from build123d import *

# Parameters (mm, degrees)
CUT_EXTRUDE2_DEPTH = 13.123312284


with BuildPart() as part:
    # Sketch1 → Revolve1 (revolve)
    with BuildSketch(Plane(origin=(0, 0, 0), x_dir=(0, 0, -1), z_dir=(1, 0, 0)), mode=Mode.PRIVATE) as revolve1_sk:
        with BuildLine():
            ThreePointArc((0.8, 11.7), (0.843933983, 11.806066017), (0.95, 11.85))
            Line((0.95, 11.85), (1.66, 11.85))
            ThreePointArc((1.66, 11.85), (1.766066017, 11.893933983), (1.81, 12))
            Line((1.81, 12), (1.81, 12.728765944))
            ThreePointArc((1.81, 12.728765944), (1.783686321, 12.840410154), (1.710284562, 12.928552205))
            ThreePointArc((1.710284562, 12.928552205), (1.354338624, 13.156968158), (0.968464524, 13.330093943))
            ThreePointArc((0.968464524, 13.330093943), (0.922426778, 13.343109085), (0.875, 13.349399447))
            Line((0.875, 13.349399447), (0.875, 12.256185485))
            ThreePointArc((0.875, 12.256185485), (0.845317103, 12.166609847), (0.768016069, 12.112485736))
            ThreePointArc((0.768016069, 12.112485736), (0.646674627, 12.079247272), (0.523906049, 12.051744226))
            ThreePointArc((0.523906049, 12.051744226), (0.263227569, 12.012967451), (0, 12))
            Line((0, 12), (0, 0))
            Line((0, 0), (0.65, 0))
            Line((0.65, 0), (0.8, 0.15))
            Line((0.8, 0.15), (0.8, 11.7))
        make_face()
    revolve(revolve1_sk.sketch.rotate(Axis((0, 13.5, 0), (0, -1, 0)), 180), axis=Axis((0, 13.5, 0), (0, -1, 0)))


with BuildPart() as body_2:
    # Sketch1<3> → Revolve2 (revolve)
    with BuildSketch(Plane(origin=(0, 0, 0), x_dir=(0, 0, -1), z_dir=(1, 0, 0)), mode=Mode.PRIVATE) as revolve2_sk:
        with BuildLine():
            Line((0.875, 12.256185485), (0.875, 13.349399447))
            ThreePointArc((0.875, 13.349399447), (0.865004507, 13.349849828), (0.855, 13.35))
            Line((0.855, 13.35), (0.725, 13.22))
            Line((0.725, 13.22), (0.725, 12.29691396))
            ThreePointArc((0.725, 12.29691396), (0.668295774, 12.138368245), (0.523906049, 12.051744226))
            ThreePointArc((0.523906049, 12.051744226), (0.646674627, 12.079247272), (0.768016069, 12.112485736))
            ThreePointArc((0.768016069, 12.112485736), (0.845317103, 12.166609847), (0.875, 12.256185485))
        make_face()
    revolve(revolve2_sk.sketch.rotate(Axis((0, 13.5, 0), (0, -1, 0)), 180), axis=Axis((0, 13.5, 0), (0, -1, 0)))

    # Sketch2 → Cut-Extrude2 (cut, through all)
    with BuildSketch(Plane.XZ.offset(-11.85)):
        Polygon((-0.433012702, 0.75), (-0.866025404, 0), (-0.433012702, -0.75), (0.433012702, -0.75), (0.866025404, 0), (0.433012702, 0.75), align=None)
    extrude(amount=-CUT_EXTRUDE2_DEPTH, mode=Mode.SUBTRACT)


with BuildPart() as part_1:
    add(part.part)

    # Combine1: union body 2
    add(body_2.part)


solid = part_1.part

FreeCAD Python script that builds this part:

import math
import FreeCAD as App
import Part
import Sketcher
Q = App.Units.Quantity

doc = App.newDocument("Part")
params = doc.addObject("Spreadsheet::Sheet", "Params")
for row, (alias, value) in enumerate([
    ("sketch1_width", "12 mm"),
    ("sketch1_radius", "0.15 mm"),
    ("sketch1_radius2", "0.25 mm"),
    ("sketch1_width2", "11.55 mm"),
    ("sketch1_height", "0.71 mm"),
    ("revolution_angle", "360 deg"),
    ("sketch2_radius", "0.25 mm"),
    ("sketch2_radius2", "0.15 mm"),
    ("revolution2_angle", "360 deg"),
], start=1):
    params.set(f"A{row}", alias)
    params.set(f"B{row}", "=" + value)
    params.setAlias(f"B{row}", alias)

body = doc.addObject("PartDesign::Body", "Body")

# Sketch on YZ plane
sketch1 = doc.addObject("Sketcher::SketchObject", "Sketch")
body.addObject(sketch1)
sketch1.AttachmentSupport = (doc.YZ_Plane, [""])
sketch1.MapMode = "FlatFace"
sketch1.addGeometry([
    Part.ArcOfCircle(Part.Circle(App.Vector(11.7, -0.95, 0), App.Vector(0, 0, 1), 0.15), math.radians(0), math.radians(90)),  # 0
    Part.LineSegment(App.Vector(11.85, -0.95, 0), App.Vector(11.85, -1.66, 0)),  # 1
    Part.ArcOfCircle(Part.Circle(App.Vector(12, -1.66, 0), App.Vector(0, 0, 1), 0.15), math.radians(-180), math.radians(-90)),  # 2
    Part.LineSegment(App.Vector(12, -1.81, 0), App.Vector(12.73, -1.81, 0)),  # 3
    Part.ArcOfCircle(Part.Circle(App.Vector(12.73, -1.56, 0), App.Vector(0, 0, 1), 0.25), math.radians(-90), math.radians(-37)),  # 4
    Part.ArcOfCircle(Part.Circle(App.Vector(10.65, 0, 0), App.Vector(0, 0, 1), 2.85), math.radians(-36.95), math.radians(-19.9)),  # 5
    Part.ArcOfCircle(Part.Circle(App.Vector(13.02, -0.86, 0), App.Vector(0, 0, 1), 0.33), math.radians(-19.9), math.radians(-3.44)),  # 6
    Part.LineSegment(App.Vector(13.35, -0.88, 0), App.Vector(12.26, -0.88, 0)),  # 7
    Part.ArcOfCircle(Part.Circle(App.Vector(12.26, -0.73, 0), App.Vector(0, 0, 1), 0.15), math.radians(-163), math.radians(-90)),  # 8
    Part.ArcOfCircle(Part.Circle(App.Vector(14.68, 0, 0), App.Vector(0, 0, 1), 2.68), math.radians(-168.72), math.radians(-163.34)),  # 9
    Part.ArcOfCircle(Part.Circle(App.Vector(14.68, 0, 0), App.Vector(0, 0, 1), 2.68), math.radians(-180), math.radians(-168.72)),  # 10
    Part.LineSegment(App.Vector(12, 0, 0), App.Vector(0, 0, 0)),  # 11
    Part.LineSegment(App.Vector(0, 0, 0), App.Vector(0, -0.65, 0)),  # 12
    Part.LineSegment(App.Vector(0, -0.65, 0), App.Vector(0.15, -0.8, 0)),  # 13
    Part.LineSegment(App.Vector(0.15, -0.8, 0), App.Vector(11.7, -0.8, 0)),  # 14
], False)
sketch1.addConstraint([
    Sketcher.Constraint("Tangent", 0, 1, 1, 1),
    Sketcher.Constraint("Tangent", 1, 2, 2, 1),
    Sketcher.Constraint("Tangent", 2, 2, 3, 1),
    Sketcher.Constraint("Tangent", 3, 2, 4, 1),
    Sketcher.Constraint("Tangent", 4, 2, 5, 1),
    Sketcher.Constraint("Tangent", 5, 2, 6, 1),
    Sketcher.Constraint("Coincident", 6, 2, 7, 1),
    Sketcher.Constraint("Tangent", 7, 2, 8, 2),
    Sketcher.Constraint("Tangent", 8, 1, 9, 2),
    Sketcher.Constraint("Tangent", 9, 1, 10, 2),
    Sketcher.Constraint("Coincident", 10, 1, 11, 1),
    Sketcher.Constraint("Coincident", 11, 2, 12, 1),
    Sketcher.Constraint("Coincident", 12, 2, 13, 1),
    Sketcher.Constraint("Coincident", 13, 2, 14, 1),
    Sketcher.Constraint("Tangent", 14, 2, 0, 2),
    Sketcher.Constraint("Vertical", 1),
    Sketcher.Constraint("Horizontal", 3),
    Sketcher.Constraint("Horizontal", 7),
    Sketcher.Constraint("Horizontal", 11),
    Sketcher.Constraint("Vertical", 12),
    Sketcher.Constraint("Horizontal", 14),
    Sketcher.Constraint("Coincident", 11, 2, -1, 1),
    Sketcher.Constraint("Equal", 0, 2),
    Sketcher.Constraint("Equal", 2, 8),
    Sketcher.Constraint("Equal", 9, 10),
    Sketcher.Constraint("PointOnObject", 5, 3, -1),
    Sketcher.Constraint("PointOnObject", 9, 3, -1),
    Sketcher.Constraint("Vertical", 2, 2, 10, 1),
    Sketcher.Constraint("DistanceX", 11, 2, 11, 1, Q("12 mm")),
    Sketcher.Constraint("Angle", 13, Q("-45 deg")),
    Sketcher.Constraint("Radius", 0, Q("0.15 mm")),
    Sketcher.Constraint("Radius", 4, Q("0.25 mm")),
    Sketcher.Constraint("DistanceX", 14, 1, 14, 2, Q("11.55 mm")),
    Sketcher.Constraint("DistanceY", 1, 2, 1, 1, Q("0.71 mm")),
    Sketcher.Constraint("DistanceY", 12, 2, 12, 1, Q("0.65 mm")),
    Sketcher.Constraint("DistanceY", 6, 3, 8, 3, Q("0.13 mm")),
    Sketcher.Constraint("DistanceY", 6, 3, -1, 1, Q("0.855 mm")),
    Sketcher.Constraint("Radius", 5, Q("2.845077 mm")),
    Sketcher.Constraint("Radius", 6, Q("0.333327 mm")),
    Sketcher.Constraint("Radius", 9, Q("2.678125 mm")),
    Sketcher.Constraint("DistanceX", -1, 1, 6, 2, Q("13.349399 mm")),
    Sketcher.Constraint("DistanceX", 9, 1, 8, 1, Q("0.060742 mm")),
])
sketch1.setExpression("Constraints[28]", "Params.sketch1_width")
sketch1.setExpression("Constraints[30]", "Params.sketch1_radius")
sketch1.setExpression("Constraints[31]", "Params.sketch1_radius2")
sketch1.setExpression("Constraints[32]", "Params.sketch1_width2")
sketch1.setExpression("Constraints[33]", "Params.sketch1_height")
revolution = doc.addObject("PartDesign::Revolution", "Revolution")
body.addObject(revolution)
revolution.Profile = sketch1
revolution.ReferenceAxis = (sketch1, ["H_Axis"])
revolution.setExpression("Angle", "Params.revolution_angle")
body2 = doc.addObject("PartDesign::Body", "Body001")

# Sketch on YZ plane
sketch2 = doc.addObject("Sketcher::SketchObject", "Sketch001")
body2.addObject(sketch2)
sketch2.AttachmentSupport = (doc.getObject("YZ_Plane001"), [""])
sketch2.MapMode = "FlatFace"
sketch2.addGeometry([
    Part.LineSegment(App.Vector(12.256, -0.875, 0), App.Vector(13.349, -0.875, 0)),  # 0
    Part.ArcOfCircle(Part.Circle(App.Vector(13.017, -0.855, 0), App.Vector(0, 0, 1), 0.333), math.radians(-3.44), math.radians(0)),  # 1
    Part.LineSegment(App.Vector(13.35, -0.855, 0), App.Vector(13.22, -0.725, 0)),  # 2
    Part.LineSegment(App.Vector(13.22, -0.725, 0), App.Vector(12.297, -0.725, 0)),  # 3
    Part.ArcOfCircle(Part.Circle(App.Vector(12.297, -0.475, 0), App.Vector(0, 0, 1), 0.25), math.radians(-169), math.radians(-90)),  # 4
    Part.ArcOfCircle(Part.Circle(App.Vector(14.678, 0, 0), App.Vector(0, 0, 1), 2.678), math.radians(-168.72), math.radians(-163.34)),  # 5
    Part.ArcOfCircle(Part.Circle(App.Vector(12.256, -0.725, 0), App.Vector(0, 0, 1), 0.15), math.radians(-163), math.radians(-90)),  # 6
], False)
sketch2.addConstraint([
    Sketcher.Constraint("Coincident", 0, 2, 1, 1),
    Sketcher.Constraint("Coincident", 1, 2, 2, 1),
    Sketcher.Constraint("Coincident", 2, 2, 3, 1),
    Sketcher.Constraint("Tangent", 3, 2, 4, 2),
    Sketcher.Constraint("Tangent", 4, 1, 5, 1),
    Sketcher.Constraint("Tangent", 5, 2, 6, 1),
    Sketcher.Constraint("Tangent", 6, 2, 0, 1),
    Sketcher.Constraint("Horizontal", 0),
    Sketcher.Constraint("Horizontal", 3),
    Sketcher.Constraint("PointOnObject", 5, 3, -1),
    Sketcher.Constraint("Horizontal", 6, 3, 2, 2),
    Sketcher.Constraint("Angle", 2, Q("135 deg")),
    Sketcher.Constraint("Radius", 4, Q("0.25 mm")),
    Sketcher.Constraint("Radius", 6, Q("0.15 mm")),
    Sketcher.Constraint("DistanceX", -1, 1, 1, 2, Q("13.35 mm")),
    Sketcher.Constraint("DistanceX", -1, 1, 2, 2, Q("13.22 mm")),
    Sketcher.Constraint("DistanceY", 1, 3, 4, 3, Q("0.38 mm")),
    Sketcher.Constraint("DistanceY", 1, 3, -1, 1, Q("0.855 mm")),
    Sketcher.Constraint("Radius", 1, Q("0.333327 mm")),
    Sketcher.Constraint("Radius", 5, Q("2.678125 mm")),
    Sketcher.Constraint("DistanceX", 0, 1, 0, 2, Q("1.093214 mm")),
])
sketch2.setExpression("Constraints[12]", "Params.sketch2_radius")
sketch2.setExpression("Constraints[13]", "Params.sketch2_radius2")
revolution2 = doc.addObject("PartDesign::Revolution", "Revolution001")
body2.addObject(revolution2)
revolution2.Profile = sketch2
revolution2.ReferenceAxis = (sketch2, ["H_Axis"])
revolution2.setExpression("Angle", "Params.revolution2_angle")

# Sketch on XZ plane
sketch3 = doc.addObject("Sketcher::SketchObject", "Sketch002")
body2.addObject(sketch3)
sketch3.AttachmentSupport = (doc.getObject("XZ_Plane001"), [""])
sketch3.MapMode = "FlatFace"
sketch3.AttachmentOffset = App.Placement(App.Vector(0, 0, -11.85), App.Rotation())
sketch3.addGeometry([
    Part.LineSegment(App.Vector(-0.4, 0.8, 0), App.Vector(-0.9, 0, 0)),  # 0
    Part.LineSegment(App.Vector(-0.9, 0, 0), App.Vector(-0.4, -0.8, 0)),  # 1
    Part.LineSegment(App.Vector(-0.4, -0.8, 0), App.Vector(0.4, -0.8, 0)),  # 2
    Part.LineSegment(App.Vector(0.4, -0.8, 0), App.Vector(0.9, 0, 0)),  # 3
    Part.LineSegment(App.Vector(0.9, 0, 0), App.Vector(0.4, 0.8, 0)),  # 4
    Part.LineSegment(App.Vector(0.4, 0.8, 0), App.Vector(-0.4, 0.8, 0)),  # 5
], False)
sketch3.addConstraint([
    Sketcher.Constraint("Coincident", 0, 2, 1, 1),
    Sketcher.Constraint("Coincident", 1, 2, 2, 1),
    Sketcher.Constraint("Coincident", 2, 2, 3, 1),
    Sketcher.Constraint("Coincident", 3, 2, 4, 1),
    Sketcher.Constraint("Coincident", 4, 2, 5, 1),
    Sketcher.Constraint("Coincident", 5, 2, 0, 1),
    Sketcher.Constraint("Horizontal", 2),
    Sketcher.Constraint("Horizontal", 5),
    Sketcher.Constraint("Symmetric", 0, 2, 3, 2, -1, 1),
    Sketcher.Constraint("Symmetric", 1, 2, 4, 2, -1, 1),
    Sketcher.Constraint("PointOnObject", 0, 2, -1),
    Sketcher.Constraint("Parallel", 0, 3),
    Sketcher.Constraint("Vertical", 2, 2, 4, 2),
    Sketcher.Constraint("Angle", 0, Q("-120 deg")),
    Sketcher.Constraint("DistanceY", 2, 2, 4, 2, Q("1.5 mm")),
    Sketcher.Constraint("DistanceX", 2, 1, 2, 2, Q("0.866025 mm")),
])
pocket1 = doc.addObject("PartDesign::Pocket", "Pocket")
body2.addObject(pocket1)
pocket1.Profile = sketch3
pocket1.Type = "ThroughAll"
doc.recompute()

boolean = doc.addObject("PartDesign::Boolean", "Boolean")
body.addObject(boolean)
boolean.Type = "Fuse"
boolean.addObjects([body2])

doc.recompute()
